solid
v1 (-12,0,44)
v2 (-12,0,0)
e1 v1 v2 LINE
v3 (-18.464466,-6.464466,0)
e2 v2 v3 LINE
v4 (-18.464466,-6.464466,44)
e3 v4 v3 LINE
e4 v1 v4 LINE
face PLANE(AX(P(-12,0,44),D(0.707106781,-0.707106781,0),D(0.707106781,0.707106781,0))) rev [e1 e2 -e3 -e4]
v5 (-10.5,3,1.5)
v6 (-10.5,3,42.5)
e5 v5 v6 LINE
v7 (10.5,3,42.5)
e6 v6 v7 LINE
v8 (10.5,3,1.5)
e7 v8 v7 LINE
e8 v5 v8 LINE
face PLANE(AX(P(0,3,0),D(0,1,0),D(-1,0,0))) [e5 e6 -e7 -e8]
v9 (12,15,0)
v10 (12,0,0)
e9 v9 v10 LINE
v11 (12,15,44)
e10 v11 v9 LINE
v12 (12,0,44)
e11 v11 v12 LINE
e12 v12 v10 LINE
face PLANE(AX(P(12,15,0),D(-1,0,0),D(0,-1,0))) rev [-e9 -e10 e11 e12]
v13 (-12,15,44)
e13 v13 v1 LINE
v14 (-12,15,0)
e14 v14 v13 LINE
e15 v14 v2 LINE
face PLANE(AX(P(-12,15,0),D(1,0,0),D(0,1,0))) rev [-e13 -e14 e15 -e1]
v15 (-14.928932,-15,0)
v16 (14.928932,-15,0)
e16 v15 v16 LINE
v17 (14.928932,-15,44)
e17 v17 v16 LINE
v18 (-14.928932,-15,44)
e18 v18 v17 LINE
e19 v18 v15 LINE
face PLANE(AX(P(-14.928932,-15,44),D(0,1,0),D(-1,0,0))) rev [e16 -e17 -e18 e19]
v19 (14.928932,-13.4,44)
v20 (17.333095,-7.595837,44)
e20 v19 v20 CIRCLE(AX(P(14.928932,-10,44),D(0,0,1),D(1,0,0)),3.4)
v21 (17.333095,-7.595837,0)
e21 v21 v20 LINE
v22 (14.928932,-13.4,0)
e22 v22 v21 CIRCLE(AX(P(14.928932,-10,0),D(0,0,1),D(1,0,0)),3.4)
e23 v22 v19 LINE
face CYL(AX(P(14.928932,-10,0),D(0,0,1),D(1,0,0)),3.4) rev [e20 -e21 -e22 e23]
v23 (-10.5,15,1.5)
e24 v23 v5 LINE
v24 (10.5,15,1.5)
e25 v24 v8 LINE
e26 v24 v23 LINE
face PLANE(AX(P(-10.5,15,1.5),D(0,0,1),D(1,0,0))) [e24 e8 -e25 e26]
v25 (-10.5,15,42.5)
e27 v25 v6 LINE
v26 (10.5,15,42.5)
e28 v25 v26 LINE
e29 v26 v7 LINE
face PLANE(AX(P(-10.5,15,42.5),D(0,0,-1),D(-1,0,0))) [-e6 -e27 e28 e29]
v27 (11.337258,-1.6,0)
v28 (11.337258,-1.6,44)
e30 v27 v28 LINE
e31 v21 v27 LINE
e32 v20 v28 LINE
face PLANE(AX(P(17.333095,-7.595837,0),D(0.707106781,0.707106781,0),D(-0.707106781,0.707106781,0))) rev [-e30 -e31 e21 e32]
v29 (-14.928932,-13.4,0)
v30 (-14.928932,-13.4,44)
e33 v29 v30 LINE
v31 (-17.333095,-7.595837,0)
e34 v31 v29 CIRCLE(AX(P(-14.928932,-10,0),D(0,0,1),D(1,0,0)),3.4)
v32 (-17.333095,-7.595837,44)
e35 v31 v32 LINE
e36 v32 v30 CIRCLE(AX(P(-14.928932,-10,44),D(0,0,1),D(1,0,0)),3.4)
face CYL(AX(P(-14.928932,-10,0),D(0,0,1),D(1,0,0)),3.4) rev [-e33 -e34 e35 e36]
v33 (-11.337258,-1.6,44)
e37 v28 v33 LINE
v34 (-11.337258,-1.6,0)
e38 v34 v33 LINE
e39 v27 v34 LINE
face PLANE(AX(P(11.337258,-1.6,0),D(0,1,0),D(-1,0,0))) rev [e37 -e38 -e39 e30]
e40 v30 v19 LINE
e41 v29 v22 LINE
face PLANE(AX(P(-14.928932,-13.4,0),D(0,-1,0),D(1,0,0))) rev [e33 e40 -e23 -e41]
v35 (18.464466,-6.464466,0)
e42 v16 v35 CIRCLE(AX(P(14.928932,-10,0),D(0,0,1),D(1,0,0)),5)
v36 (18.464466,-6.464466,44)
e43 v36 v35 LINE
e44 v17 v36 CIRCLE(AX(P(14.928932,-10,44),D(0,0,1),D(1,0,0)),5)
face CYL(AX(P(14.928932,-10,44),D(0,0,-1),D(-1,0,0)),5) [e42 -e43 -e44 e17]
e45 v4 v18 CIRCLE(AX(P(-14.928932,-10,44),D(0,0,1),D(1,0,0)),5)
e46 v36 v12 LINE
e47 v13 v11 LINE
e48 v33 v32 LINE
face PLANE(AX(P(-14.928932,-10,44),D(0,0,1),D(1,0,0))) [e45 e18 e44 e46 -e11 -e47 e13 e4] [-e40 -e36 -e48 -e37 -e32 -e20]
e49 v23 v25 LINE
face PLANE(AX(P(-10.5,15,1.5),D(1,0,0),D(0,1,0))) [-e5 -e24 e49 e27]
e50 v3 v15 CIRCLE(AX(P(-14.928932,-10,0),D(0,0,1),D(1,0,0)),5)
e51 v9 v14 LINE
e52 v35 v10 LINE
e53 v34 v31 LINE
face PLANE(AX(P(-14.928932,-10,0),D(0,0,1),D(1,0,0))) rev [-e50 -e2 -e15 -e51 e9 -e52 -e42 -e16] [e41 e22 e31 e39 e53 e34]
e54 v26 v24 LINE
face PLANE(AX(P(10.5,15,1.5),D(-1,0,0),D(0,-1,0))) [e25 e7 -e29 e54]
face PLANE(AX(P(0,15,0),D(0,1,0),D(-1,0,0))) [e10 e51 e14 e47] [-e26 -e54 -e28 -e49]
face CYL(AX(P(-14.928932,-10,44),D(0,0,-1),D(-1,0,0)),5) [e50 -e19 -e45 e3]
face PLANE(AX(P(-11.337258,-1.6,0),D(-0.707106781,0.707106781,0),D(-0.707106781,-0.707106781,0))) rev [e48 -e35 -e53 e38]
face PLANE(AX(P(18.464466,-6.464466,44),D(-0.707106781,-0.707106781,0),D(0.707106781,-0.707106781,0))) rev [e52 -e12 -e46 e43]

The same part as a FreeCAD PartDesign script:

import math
import FreeCAD as App
import Part
import Sketcher
from FreeCAD import Vector
Q = App.Units.Quantity


def add_polygon(sketch, points):
    """Adds a closed chain of lines whose ends are joined by coincident constraints."""
    first, n = sketch.GeometryCount, len(points)
    for a, b in zip(points, points[1:] + points[:1]):
        sketch.addGeometry(Part.LineSegment(App.Vector(*a, 0), App.Vector(*b, 0)), False)
    for i in range(n):
        sketch.addConstraint(Sketcher.Constraint("Coincident", first + i, 2, first + (i + 1) % n, 1))

doc = App.newDocument("Part")
params = doc.addObject("Spreadsheet::Sheet", "Params")
for row, (alias, value) in enumerate([
    ("sketch1_radius", "5 mm"),
    ("sketch1_width", "24 mm"),
    ("pad1_length", "44 mm"),
    ("sketch2_radius", "3.4 mm"),
    ("sketch3_width", "24 mm"),
    ("sketch3_width2", "21 mm"),
    ("sketch3_height", "44 mm"),
    ("sketch3_height2", "41 mm"),
    ("pad2_length", "15 mm"),
    ("sketch4_width", "21 mm"),
    ("sketch4_height", "41 mm"),
    ("pad3_length", "3 mm"),
], start=1):
    params.set(f"A{row}", alias)
    params.set(f"B{row}", "=" + value)
    params.setAlias(f"B{row}", alias)

body = doc.addObject("PartDesign::Body", "Body")

sketch1 = doc.addObject("Sketcher::SketchObject", "Sketch")
body.addObject(sketch1)
sketch1.AttachmentSupport = (doc.XY_Plane, [""])
sketch1.MapMode = "FlatFace"
sketch1.addGeometry(Part.LineSegment(Vector(12, 0, 0), Vector(-12, 0, 0)), False)
sketch1.addGeometry(Part.LineSegment(Vector(-12, 0, 0), Vector(-18.464466, -6.464466, 0)), False)
sketch1.addGeometry(Part.ArcOfCircle(Part.Circle(Vector(-14.928932, -10, 0), Vector(0, 0, 1), 5), math.radians(135), math.radians(270)), False)
sketch1.addGeometry(Part.LineSegment(Vector(-14.928932, -15, 0), Vector(14.928932, -15, 0)), False)
sketch1.addGeometry(Part.ArcOfCircle(Part.Circle(Vector(14.928932, -10, 0), Vector(0, 0, 1), 5), math.radians(-90), math.radians(45)), False)
sketch1.addGeometry(Part.LineSegment(Vector(18.464466, -6.464466, 0), Vector(12, 0, 0)), False)
sketch1.addConstraint(Sketcher.Constraint("Coincident", 0, 2, 1, 1))
sketch1.addConstraint(Sketcher.Constraint("Tangent", 1, 2, 2, 1))
sketch1.addConstraint(Sketcher.Constraint("Tangent", 2, 2, 3, 1))
sketch1.addConstraint(Sketcher.Constraint("Tangent", 3, 2, 4, 1))
sketch1.addConstraint(Sketcher.Constraint("Tangent", 4, 2, 5, 1))
sketch1.addConstraint(Sketcher.Constraint("Coincident", 5, 2, 0, 1))
sketch1.addConstraint(Sketcher.Constraint("Horizontal", 0))
sketch1.addConstraint(Sketcher.Constraint("Horizontal", 3))
sketch1.addConstraint(Sketcher.Constraint("Equal", 2, 4))
sketch1.addConstraint(Sketcher.Constraint("Symmetric", 0, 2, 5, 2, -1, 1))
sketch1.addConstraint(Sketcher.Constraint("Perpendicular", 1, 5))
sketch1.addConstraint(Sketcher.Constraint("Horizontal", 1, 2, 4, 2))
sketch1.addConstraint(Sketcher.Constraint("Radius", 2, Q("5 mm")))
sketch1.addConstraint(Sketcher.Constraint("DistanceX", 0, 2, 0, 1, Q("24 mm")))
sketch1.addConstraint(Sketcher.Constraint("DistanceY", 2, 3, -1, 1, Q("10 mm")))
sketch1.setExpression("Constraints[12]", "Params.sketch1_radius")
sketch1.setExpression("Constraints[13]", "Params.sketch1_width")
pad1 = doc.addObject("PartDesign::Pad", "Pad")
body.addObject(pad1)
pad1.Profile = sketch1
pad1.setExpression("Length", "Params.pad1_length")

sketch2 = doc.addObject("Sketcher::SketchObject", "Sketch001")
body.addObject(sketch2)
sketch2.AttachmentSupport = (doc.XY_Plane, [""])
sketch2.MapMode = "FlatFace"
sketch2.AttachmentOffset = App.Placement(Vector(0, 0, 44), App.Rotation())
sketch2.addGeometry(Part.LineSegment(Vector(-14.928932, -13.4, 0), Vector(14.928932, -13.4, 0)), False)
sketch2.addGeometry(Part.ArcOfCircle(Part.Circle(Vector(14.928932, -10, 0), Vector(0, 0, 1), 3.4), math.radians(-90), math.radians(45)), False)
sketch2.addGeometry(Part.LineSegment(Vector(17.333095, -7.595837, 0), Vector(11.337258, -1.6, 0)), False)
sketch2.addGeometry(Part.LineSegment(Vector(11.337258, -1.6, 0), Vector(-11.337258, -1.6, 0)), False)
sketch2.addGeometry(Part.LineSegment(Vector(-11.337258, -1.6, 0), Vector(-17.333095, -7.595837, 0)), False)
sketch2.addGeometry(Part.ArcOfCircle(Part.Circle(Vector(-14.928932, -10, 0), Vector(0, 0, 1), 3.4), math.radians(135), math.radians(270)), False)
sketch2.addConstraint(Sketcher.Constraint("Tangent", 0, 2, 1, 1))
sketch2.addConstraint(Sketcher.Constraint("Tangent", 1, 2, 2, 1))
sketch2.addConstraint(Sketcher.Constraint("Coincident", 2, 2, 3, 1))
sketch2.addConstraint(Sketcher.Constraint("Coincident", 3, 2, 4, 1))
sketch2.addConstraint(Sketcher.Constraint("Tangent", 4, 2, 5, 1))
sketch2.addConstraint(Sketcher.Constraint("Tangent", 5, 2, 0, 1))
sketch2.addConstraint(Sketcher.Constraint("Horizontal", 0))
sketch2.addConstraint(Sketcher.Constraint("Horizontal", 3))
sketch2.addConstraint(Sketcher.Constraint("Equal", 1, 5))
sketch2.addConstraint(Sketcher.Constraint("Symmetric", 1, 2, 4, 2, -2))
sketch2.addConstraint(Sketcher.Constraint("Perpendicular", 2, 4))
sketch2.addConstraint(Sketcher.Constraint("Radius", 1, Q("3.4 mm")))
sketch2.addConstraint(Sketcher.Constraint("DistanceY", 1, 3, -1, 1, Q("10 mm")))
sketch2.addConstraint(Sketcher.Constraint("DistanceY", 2, 2, -1, 1, Q("1.6 mm")))
sketch2.addConstraint(Sketcher.Constraint("DistanceX", 0, 1, 0, 2, Q("29.857864 mm")))
sketch2.setExpression("Constraints[11]", "Params.sketch2_radius")
pocket1 = doc.addObject("PartDesign::Pocket", "Pocket")
body.addObject(pocket1)
pocket1.Profile = sketch2
pocket1.Type = "ThroughAll"

sketch3 = doc.addObject("Sketcher::SketchObject", "Sketch002")
body.addObject(sketch3)
sketch3.AttachmentSupport = (doc.XZ_Plane, [""])
sketch3.MapMode = "FlatFace"
add_polygon(sketch3, [(-12, 0), (-12, 44), (12, 44), (12, 0)])
add_polygon(sketch3, [(10.5, 42.5), (-10.5, 42.5), (-10.5, 1.5), (10.5, 1.5)])
sketch3.addConstraint(Sketcher.Constraint("Vertical", 0))
sketch3.addConstraint(Sketcher.Constraint("Horizontal", 1))
sketch3.addConstraint(Sketcher.Constraint("Vertical", 2))
sketch3.addConstraint(Sketcher.Constraint("Horizontal", 3))
sketch3.addConstraint(Sketcher.Constraint("Horizontal", 4))
sketch3.addConstraint(Sketcher.Constraint("Vertical", 5))
sketch3.addConstraint(Sketcher.Constraint("Horizontal", 6))
sketch3.addConstraint(Sketcher.Constraint("Vertical", 7))
sketch3.addConstraint(Sketcher.Constraint("Symmetric", 2, 2, 3, 2, -1, 1))
sketch3.addConstraint(Sketcher.Constraint("DistanceX", 1, 1, 1, 2, Q("24 mm")))
sketch3.addConstraint(Sketcher.Constraint("DistanceX", 4, 2, 4, 1, Q("21 mm")))
sketch3.addConstraint(Sketcher.Constraint("DistanceY", 0, 1, 0, 2, Q("44 mm")))
sketch3.addConstraint(Sketcher.Constraint("DistanceY", 5, 2, 5, 1, Q("41 mm")))
sketch3.addConstraint(Sketcher.Constraint("DistanceX", 4, 2, -1, 1, Q("10.5 mm")))
sketch3.addConstraint(Sketcher.Constraint("DistanceY", -1, 1, 4, 2, Q("42.5 mm")))
sketch3.setExpression("Constraints[17]", "Params.sketch3_width")
sketch3.setExpression("Constraints[18]", "Params.sketch3_width2")
sketch3.setExpression("Constraints[19]", "Params.sketch3_height")
sketch3.setExpression("Constraints[20]", "Params.sketch3_height2")
pad2 = doc.addObject("PartDesign::Pad", "Pad001")
body.addObject(pad2)
pad2.Profile = sketch3
pad2.setExpression("Length", "Params.pad2_length")
pad2.Reversed = True

sketch4 = doc.addObject("Sketcher::SketchObject", "Sketch003")
body.addObject(sketch4)
sketch4.AttachmentSupport = (doc.XZ_Plane, [""])
sketch4.MapMode = "FlatFace"
add_polygon(sketch4, [(-10.5, 1.5), (-10.5, 42.5), (10.5, 42.5), (10.5, 1.5)])
sketch4.addConstraint(Sketcher.Constraint("Vertical", 0))
sketch4.addConstraint(Sketcher.Constraint("Horizontal", 1))
sketch4.addConstraint(Sketcher.Constraint("Vertical", 2))
sketch4.addConstraint(Sketcher.Constraint("Horizontal", 3))
sketch4.addConstraint(Sketcher.Constraint("DistanceX", 1, 1, 1, 2, Q("21 mm")))
sketch4.addConstraint(Sketcher.Constraint("DistanceY", 0, 1, 0, 2, Q("41 mm")))
sketch4.addConstraint(Sketcher.Constraint("DistanceX", 0, 2, -1, 1, Q("10.5 mm")))
sketch4.addConstraint(Sketcher.Constraint("DistanceY", -1, 1, 0, 2, Q("42.5 mm")))
sketch4.setExpression("Constraints[8]", "Params.sketch4_width")
sketch4.setExpression("Constraints[9]", "Params.sketch4_height")
pad3 = doc.addObject("PartDesign::Pad", "Pad002")
body.addObject(pad3)
pad3.Profile = sketch4
pad3.setExpression("Length", "Params.pad3_length")
pad3.Reversed = True

doc.recompute()
